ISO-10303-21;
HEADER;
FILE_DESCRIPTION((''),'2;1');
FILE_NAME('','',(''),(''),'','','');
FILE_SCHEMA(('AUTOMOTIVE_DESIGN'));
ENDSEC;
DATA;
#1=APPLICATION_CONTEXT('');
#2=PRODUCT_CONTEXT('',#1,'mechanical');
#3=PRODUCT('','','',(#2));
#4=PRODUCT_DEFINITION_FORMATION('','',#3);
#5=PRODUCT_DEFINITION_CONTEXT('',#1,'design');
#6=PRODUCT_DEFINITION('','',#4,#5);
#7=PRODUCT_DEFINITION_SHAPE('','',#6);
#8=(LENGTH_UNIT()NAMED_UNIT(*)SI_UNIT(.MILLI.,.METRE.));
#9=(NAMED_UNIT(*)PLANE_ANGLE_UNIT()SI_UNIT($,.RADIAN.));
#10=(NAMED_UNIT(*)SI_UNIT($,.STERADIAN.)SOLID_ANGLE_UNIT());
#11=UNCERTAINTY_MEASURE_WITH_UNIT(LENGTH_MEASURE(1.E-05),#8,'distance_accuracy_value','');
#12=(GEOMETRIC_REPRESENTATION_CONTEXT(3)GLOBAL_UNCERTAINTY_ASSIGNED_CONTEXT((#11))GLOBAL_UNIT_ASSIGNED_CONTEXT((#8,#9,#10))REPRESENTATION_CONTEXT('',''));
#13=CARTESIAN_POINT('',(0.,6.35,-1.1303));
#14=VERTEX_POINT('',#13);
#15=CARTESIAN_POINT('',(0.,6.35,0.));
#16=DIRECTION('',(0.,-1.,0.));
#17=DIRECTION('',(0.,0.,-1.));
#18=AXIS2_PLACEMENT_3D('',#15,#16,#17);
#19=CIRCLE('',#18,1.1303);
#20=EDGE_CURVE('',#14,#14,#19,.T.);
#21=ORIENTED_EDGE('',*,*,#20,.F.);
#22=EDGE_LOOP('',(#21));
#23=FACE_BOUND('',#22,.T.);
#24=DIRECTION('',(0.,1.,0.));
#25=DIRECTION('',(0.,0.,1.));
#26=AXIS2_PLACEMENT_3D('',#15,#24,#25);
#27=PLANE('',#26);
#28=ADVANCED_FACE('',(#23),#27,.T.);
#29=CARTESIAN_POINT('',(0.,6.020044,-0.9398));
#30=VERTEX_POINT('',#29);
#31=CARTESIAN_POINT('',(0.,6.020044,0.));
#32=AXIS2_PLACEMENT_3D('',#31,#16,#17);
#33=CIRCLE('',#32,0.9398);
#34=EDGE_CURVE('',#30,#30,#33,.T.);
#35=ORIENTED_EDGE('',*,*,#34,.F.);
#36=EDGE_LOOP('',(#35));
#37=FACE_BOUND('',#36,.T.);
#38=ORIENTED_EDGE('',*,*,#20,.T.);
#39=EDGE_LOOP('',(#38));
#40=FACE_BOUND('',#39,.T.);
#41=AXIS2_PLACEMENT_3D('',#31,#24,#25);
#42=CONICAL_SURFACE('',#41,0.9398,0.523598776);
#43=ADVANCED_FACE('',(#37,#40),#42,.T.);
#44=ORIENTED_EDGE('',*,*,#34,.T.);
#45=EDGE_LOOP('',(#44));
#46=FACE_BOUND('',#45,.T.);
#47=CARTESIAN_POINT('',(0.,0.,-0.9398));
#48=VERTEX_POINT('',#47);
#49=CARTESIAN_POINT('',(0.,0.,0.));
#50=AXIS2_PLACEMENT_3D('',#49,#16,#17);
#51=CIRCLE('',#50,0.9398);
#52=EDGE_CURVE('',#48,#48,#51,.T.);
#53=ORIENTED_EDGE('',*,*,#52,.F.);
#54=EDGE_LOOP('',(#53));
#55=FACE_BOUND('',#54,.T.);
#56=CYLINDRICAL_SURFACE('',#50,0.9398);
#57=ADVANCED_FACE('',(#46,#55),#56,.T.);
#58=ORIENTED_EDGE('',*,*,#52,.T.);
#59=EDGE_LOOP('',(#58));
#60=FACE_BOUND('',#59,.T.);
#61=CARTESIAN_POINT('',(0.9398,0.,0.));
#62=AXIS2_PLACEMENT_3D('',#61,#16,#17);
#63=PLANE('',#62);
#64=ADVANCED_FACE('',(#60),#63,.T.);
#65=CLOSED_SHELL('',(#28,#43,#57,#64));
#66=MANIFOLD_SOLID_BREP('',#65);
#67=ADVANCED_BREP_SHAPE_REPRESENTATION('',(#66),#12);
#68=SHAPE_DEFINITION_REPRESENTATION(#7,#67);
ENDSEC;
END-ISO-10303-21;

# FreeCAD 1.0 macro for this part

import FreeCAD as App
import Part
import Sketcher
from FreeCAD import Vector
Q = App.Units.Quantity


def add_polygon(sketch, points):
    """Adds a closed chain of lines whose ends are joined by coincident constraints."""
    first, n = sketch.GeometryCount, len(points)
    for a, b in zip(points, points[1:] + points[:1]):
        sketch.addGeometry(Part.LineSegment(App.Vector(*a, 0), App.Vector(*b, 0)), False)
    for i in range(n):
        sketch.addConstraint(Sketcher.Constraint("Coincident", first + i, 2, first + (i + 1) % n, 1))

doc = App.newDocument("Part")
body = doc.addObject("PartDesign::Body", "Body")

sketch1 = body.newObject("Sketcher::SketchObject", "Sketch")
sketch1.AttachmentSupport = (doc.getObject("XY_Plane"), [""])
sketch1.MapMode = "FlatFace"
add_polygon(sketch1, [(1.13, 6.35), (0, 6.35), (0, 0), (0.94, 0), (0.94, 6.02)])
sketch1.addConstraint(Sketcher.Constraint("Horizontal", 0))
sketch1.addConstraint(Sketcher.Constraint("Vertical", 1))
sketch1.addConstraint(Sketcher.Constraint("Horizontal", 2))
sketch1.addConstraint(Sketcher.Constraint("Vertical", 3))
sketch1.addConstraint(Sketcher.Constraint("Coincident", 1, 2, -1, 1))
sketch1.addConstraint(Sketcher.Constraint("Angle", 4, Q("60 deg")))
sketch1.addConstraint(Sketcher.Constraint("DistanceY", 1, 2, 1, 1, Q("0.25 in")))
sketch1.addConstraint(Sketcher.Constraint("DistanceX", 2, 1, 2, 2, Q("0.037 in")))
sketch1.addConstraint(Sketcher.Constraint("Distance", 4, Q("0.015 in")))
revolution = body.newObject("PartDesign::Revolution", "Revolution")
revolution.Profile = sketch1
revolution.ReferenceAxis = (sketch1, ["V_Axis"])
revolution.Angle = 360

doc.recompute()
